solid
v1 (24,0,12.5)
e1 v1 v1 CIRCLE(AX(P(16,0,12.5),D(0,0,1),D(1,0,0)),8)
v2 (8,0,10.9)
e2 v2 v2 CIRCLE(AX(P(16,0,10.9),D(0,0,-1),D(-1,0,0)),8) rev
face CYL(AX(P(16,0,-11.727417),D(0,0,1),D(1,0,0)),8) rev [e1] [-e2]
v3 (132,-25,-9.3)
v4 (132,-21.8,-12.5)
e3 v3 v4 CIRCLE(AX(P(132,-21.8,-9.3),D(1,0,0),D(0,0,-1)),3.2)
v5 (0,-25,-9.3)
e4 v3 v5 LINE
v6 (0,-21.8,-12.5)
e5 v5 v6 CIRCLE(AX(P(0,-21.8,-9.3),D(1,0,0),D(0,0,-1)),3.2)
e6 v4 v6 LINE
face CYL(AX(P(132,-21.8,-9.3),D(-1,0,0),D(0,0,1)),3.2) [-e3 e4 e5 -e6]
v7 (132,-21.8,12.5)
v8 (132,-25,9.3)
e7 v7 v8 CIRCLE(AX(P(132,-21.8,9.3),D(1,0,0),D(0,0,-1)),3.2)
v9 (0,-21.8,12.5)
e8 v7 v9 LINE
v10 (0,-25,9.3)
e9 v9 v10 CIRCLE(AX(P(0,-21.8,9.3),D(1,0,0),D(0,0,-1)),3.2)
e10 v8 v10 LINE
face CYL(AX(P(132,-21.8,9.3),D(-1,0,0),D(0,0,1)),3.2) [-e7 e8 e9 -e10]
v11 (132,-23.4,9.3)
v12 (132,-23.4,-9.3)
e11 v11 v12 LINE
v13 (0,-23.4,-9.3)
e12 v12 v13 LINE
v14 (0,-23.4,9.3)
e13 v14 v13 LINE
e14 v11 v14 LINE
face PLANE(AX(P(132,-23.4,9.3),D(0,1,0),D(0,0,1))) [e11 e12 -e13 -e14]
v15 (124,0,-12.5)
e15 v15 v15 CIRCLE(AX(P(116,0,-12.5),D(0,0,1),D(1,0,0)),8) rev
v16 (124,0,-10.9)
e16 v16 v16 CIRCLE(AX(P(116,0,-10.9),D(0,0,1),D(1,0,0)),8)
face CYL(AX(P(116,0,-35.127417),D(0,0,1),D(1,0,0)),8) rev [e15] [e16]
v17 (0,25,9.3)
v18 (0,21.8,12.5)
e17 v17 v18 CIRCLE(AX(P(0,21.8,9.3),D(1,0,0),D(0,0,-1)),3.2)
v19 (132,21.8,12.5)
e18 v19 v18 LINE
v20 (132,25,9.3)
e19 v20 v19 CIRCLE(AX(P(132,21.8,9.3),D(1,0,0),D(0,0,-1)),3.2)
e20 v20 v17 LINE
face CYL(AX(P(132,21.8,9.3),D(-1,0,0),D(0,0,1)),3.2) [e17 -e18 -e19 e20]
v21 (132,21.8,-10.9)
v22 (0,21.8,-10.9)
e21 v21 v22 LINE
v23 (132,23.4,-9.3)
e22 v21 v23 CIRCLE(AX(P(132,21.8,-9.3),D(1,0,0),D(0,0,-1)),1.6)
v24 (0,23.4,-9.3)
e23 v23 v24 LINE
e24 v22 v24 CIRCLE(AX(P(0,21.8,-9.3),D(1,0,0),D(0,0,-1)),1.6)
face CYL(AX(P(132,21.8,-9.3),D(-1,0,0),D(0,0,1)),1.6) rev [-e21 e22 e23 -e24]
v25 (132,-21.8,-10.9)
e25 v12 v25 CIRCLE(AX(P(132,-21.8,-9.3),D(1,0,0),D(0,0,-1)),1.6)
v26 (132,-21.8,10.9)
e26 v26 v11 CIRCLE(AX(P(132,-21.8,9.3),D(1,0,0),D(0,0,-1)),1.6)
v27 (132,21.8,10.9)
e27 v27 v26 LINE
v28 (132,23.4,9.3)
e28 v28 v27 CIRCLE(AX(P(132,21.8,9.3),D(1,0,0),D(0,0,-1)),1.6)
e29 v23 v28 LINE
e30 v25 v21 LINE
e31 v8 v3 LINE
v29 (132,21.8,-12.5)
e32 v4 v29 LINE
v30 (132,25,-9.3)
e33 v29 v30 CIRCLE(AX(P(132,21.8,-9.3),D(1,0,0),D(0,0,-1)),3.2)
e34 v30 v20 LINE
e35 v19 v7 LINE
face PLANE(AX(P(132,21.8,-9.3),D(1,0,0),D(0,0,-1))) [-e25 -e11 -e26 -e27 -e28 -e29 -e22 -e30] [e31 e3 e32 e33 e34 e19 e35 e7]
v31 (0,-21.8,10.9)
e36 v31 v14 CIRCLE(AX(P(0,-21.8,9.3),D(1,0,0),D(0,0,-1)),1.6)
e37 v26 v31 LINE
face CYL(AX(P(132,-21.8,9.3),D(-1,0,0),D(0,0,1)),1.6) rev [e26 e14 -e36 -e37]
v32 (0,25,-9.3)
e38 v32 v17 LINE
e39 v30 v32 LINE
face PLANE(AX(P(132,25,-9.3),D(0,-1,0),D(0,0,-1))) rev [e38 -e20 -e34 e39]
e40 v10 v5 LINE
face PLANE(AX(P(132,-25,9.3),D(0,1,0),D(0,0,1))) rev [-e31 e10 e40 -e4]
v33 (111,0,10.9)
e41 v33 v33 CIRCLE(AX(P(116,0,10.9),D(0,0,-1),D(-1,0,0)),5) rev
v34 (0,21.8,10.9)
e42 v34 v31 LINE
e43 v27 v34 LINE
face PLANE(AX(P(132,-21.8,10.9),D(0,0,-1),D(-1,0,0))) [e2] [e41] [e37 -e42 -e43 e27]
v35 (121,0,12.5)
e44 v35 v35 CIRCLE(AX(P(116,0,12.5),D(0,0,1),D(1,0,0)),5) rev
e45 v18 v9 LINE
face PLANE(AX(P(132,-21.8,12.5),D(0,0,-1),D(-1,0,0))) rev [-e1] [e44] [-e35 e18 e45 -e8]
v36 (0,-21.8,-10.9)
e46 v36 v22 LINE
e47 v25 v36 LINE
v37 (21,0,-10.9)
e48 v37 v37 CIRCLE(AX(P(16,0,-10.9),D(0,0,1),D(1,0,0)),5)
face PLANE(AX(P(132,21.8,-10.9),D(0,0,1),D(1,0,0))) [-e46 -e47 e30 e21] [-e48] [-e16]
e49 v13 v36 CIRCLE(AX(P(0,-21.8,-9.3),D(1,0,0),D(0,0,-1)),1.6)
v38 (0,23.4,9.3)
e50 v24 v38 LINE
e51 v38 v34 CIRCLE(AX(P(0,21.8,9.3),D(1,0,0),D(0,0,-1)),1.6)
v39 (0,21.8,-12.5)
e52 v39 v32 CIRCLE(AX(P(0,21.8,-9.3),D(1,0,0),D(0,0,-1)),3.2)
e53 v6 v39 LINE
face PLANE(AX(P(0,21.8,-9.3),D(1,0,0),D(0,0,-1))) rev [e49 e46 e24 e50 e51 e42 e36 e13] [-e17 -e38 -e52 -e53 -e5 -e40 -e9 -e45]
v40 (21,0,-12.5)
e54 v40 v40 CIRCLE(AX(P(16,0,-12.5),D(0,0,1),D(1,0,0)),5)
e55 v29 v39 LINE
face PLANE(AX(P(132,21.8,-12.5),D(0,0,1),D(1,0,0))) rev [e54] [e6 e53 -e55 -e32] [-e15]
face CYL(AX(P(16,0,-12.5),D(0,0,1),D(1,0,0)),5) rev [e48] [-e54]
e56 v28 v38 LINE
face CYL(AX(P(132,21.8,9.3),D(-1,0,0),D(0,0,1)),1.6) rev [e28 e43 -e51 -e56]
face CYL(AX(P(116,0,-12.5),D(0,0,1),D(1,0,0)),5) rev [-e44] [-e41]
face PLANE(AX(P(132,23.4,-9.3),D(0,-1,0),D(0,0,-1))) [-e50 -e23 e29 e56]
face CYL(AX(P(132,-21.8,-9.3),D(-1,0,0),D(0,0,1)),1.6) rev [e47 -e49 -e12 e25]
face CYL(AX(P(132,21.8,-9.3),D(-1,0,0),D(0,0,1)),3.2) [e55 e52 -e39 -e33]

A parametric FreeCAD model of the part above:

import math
import FreeCAD as App
import Part
import Sketcher

doc = App.newDocument("Part")
body = doc.addObject("PartDesign::Body", "Body")

sketch1 = body.newObject("Sketcher::SketchObject", "Sketch")
sketch1.AttachmentSupport = (doc.getObject("YZ_Plane"), [""])
sketch1.MapMode = "FlatFace"
sketch1.addGeometry([
    Part.LineSegment(App.Vector(-25, 9.3, 0), App.Vector(-25, -9.3, 0)),
    Part.ArcOfCircle(Part.Circle(App.Vector(-21.8, -9.3, 0), App.Vector(0, 0, 1), 3.2), math.radians(180), math.radians(270)),
    Part.LineSegment(App.Vector(-21.8, -12.5, 0), App.Vector(21.8, -12.5, 0)),
    Part.ArcOfCircle(Part.Circle(App.Vector(21.8, -9.3, 0), App.Vector(0, 0, 1), 3.2), math.radians(-90), math.radians(0)),
    Part.LineSegment(App.Vector(25, -9.3, 0), App.Vector(25, 9.3, 0)),
    Part.ArcOfCircle(Part.Circle(App.Vector(21.8, 9.3, 0), App.Vector(0, 0, 1), 3.2), math.radians(0), math.radians(90)),
    Part.LineSegment(App.Vector(21.8, 12.5, 0), App.Vector(-21.8, 12.5, 0)),
    Part.ArcOfCircle(Part.Circle(App.Vector(-21.8, 9.3, 0), App.Vector(0, 0, 1), 3.2), math.radians(90), math.radians(180)),
    Part.LineSegment(App.Vector(-23.4, -9.3, 0), App.Vector(-23.4, 9.3, 0)),
    Part.ArcOfCircle(Part.Circle(App.Vector(-21.8, 9.3, 0), App.Vector(0, 0, 1), 1.6), math.radians(90), math.radians(180)),
    Part.LineSegment(App.Vector(-21.8, 10.9, 0), App.Vector(21.8, 10.9, 0)),
    Part.ArcOfCircle(Part.Circle(App.Vector(21.8, 9.3, 0), App.Vector(0, 0, 1), 1.6), math.radians(0), math.radians(90)),
    Part.LineSegment(App.Vector(23.4, 9.3, 0), App.Vector(23.4, -9.3, 0)),
    Part.ArcOfCircle(Part.Circle(App.Vector(21.8, -9.3, 0), App.Vector(0, 0, 1), 1.6), math.radians(-90), math.radians(0)),
    Part.LineSegment(App.Vector(21.8, -10.9, 0), App.Vector(-21.8, -10.9, 0)),
    Part.ArcOfCircle(Part.Circle(App.Vector(-21.8, -9.3, 0), App.Vector(0, 0, 1), 1.6), math.radians(180), math.radians(270)),
], False)
sketch1.addConstraint([
    Sketcher.Constraint("Tangent", 0, 2, 1, 1),
    Sketcher.Constraint("Tangent", 1, 2, 2, 1),
    Sketcher.Constraint("Tangent", 2, 2, 3, 1),
    Sketcher.Constraint("Tangent", 3, 2, 4, 1),
    Sketcher.Constraint("Tangent", 4, 2, 5, 1),
    Sketcher.Constraint("Tangent", 5, 2, 6, 1),
    Sketcher.Constraint("Tangent", 6, 2, 7, 1),
    Sketcher.Constraint("Tangent", 7, 2, 0, 1),
    Sketcher.Constraint("Tangent", 8, 2, 9, 2),
    Sketcher.Constraint("Tangent", 9, 1, 10, 1),
    Sketcher.Constraint("Tangent", 10, 2, 11, 2),
    Sketcher.Constraint("Tangent", 11, 1, 12, 1),
    Sketcher.Constraint("Tangent", 12, 2, 13, 2),
    Sketcher.Constraint("Tangent", 13, 1, 14, 1),
    Sketcher.Constraint("Tangent", 14, 2, 15, 2),
    Sketcher.Constraint("Tangent", 15, 1, 8, 1),
    Sketcher.Constraint("Vertical", 0),
    Sketcher.Constraint("Horizontal", 2),
    Sketcher.Constraint("Vertical", 4),
    Sketcher.Constraint("Horizontal", 6),
    Sketcher.Constraint("Vertical", 8),
    Sketcher.Constraint("Horizontal", 10),
    Sketcher.Constraint("Vertical", 12),
    Sketcher.Constraint("Horizontal", 14),
    Sketcher.Constraint("Coincident", 9, 3, 7, 3),
    Sketcher.Constraint("Coincident", 11, 3, 5, 3),
    Sketcher.Constraint("Coincident", 13, 3, 3, 3),
    Sketcher.Constraint("Equal", 1, 3),
    Sketcher.Constraint("Equal", 3, 5),
    Sketcher.Constraint("Equal", 5, 7),
    Sketcher.Constraint("Equal", 13, 15),
    Sketcher.Constraint("Symmetric", 1, 3, 5, 3, -1, 1),
    Sketcher.Constraint("Radius", 1, 3.2),
    Sketcher.Constraint("Radius", 9, 1.6),
    Sketcher.Constraint("DistanceX", 2, 1, 2, 2, 43.6),
    Sketcher.Constraint("DistanceY", 0, 2, 0, 1, 18.6),
])
pad1 = body.newObject("PartDesign::Pad", "Pad")
pad1.Profile = sketch1
pad1.Length = 132

sketch2 = body.newObject("Sketcher::SketchObject", "Sketch001")
sketch2.AttachmentSupport = (doc.getObject("XY_Plane"), [""])
sketch2.MapMode = "FlatFace"
sketch2.AttachmentOffset = App.Placement(App.Vector(0, 0, 12.5), App.Rotation())
sketch2.addGeometry([
    Part.Circle(App.Vector(16, 0, 0), App.Vector(0, 0, 1), 5),
    Part.Circle(App.Vector(116, 0, 0), App.Vector(0, 0, 1), 5),
], False)
sketch2.addConstraint([
    Sketcher.Constraint("Equal", 0, 1),
    Sketcher.Constraint("PointOnObject", 0, 3, -1),
    Sketcher.Constraint("PointOnObject", 1, 3, -1),
    Sketcher.Constraint("Diameter", 0, 10.0),
    Sketcher.Constraint("DistanceX", -1, 1, 0, 3, 16.0),
    Sketcher.Constraint("DistanceX", -1, 1, 1, 3, 116.0),
])
pocket1 = body.newObject("PartDesign::Pocket", "Pocket")
pocket1.Profile = sketch2
pocket1.Type = "ThroughAll"

sketch3 = body.newObject("Sketcher::SketchObject", "Sketch002")
sketch3.AttachmentSupport = (doc.getObject("XY_Plane"), [""])
sketch3.MapMode = "FlatFace"
sketch3.AttachmentOffset = App.Placement(App.Vector(0, 0, 12.5), App.Rotation())
sketch3.addGeometry(Part.Circle(App.Vector(16, 0, 0), App.Vector(0, 0, 1), 8), False)
sketch3.addConstraint([
    Sketcher.Constraint("PointOnObject", 0, 3, -1),
    Sketcher.Constraint("Diameter", 0, 16.0),
    Sketcher.Constraint("DistanceX", -1, 1, 0, 3, 16.0),
])
pocket2 = body.newObject("PartDesign::Pocket", "Pocket001")
pocket2.Profile = sketch3
pocket2.Length = 1.6

sketch4 = body.newObject("Sketcher::SketchObject", "Sketch003")
sketch4.AttachmentSupport = (doc.getObject("XY_Plane"), [""])
sketch4.MapMode = "FlatFace"
sketch4.AttachmentOffset = App.Placement(App.Vector(0, 0, -10.9), App.Rotation())
sketch4.addGeometry(Part.Circle(App.Vector(116, 0, 0), App.Vector(0, 0, 1), 8), False)
sketch4.addConstraint([
    Sketcher.Constraint("PointOnObject", 0, 3, -1),
    Sketcher.Constraint("Diameter", 0, 16.0),
    Sketcher.Constraint("DistanceX", -1, 1, 0, 3, 116.0),
])
pocket3 = body.newObject("PartDesign::Pocket", "Pocket002")
pocket3.Profile = sketch4
pocket3.Length = 1.6

doc.recompute()
